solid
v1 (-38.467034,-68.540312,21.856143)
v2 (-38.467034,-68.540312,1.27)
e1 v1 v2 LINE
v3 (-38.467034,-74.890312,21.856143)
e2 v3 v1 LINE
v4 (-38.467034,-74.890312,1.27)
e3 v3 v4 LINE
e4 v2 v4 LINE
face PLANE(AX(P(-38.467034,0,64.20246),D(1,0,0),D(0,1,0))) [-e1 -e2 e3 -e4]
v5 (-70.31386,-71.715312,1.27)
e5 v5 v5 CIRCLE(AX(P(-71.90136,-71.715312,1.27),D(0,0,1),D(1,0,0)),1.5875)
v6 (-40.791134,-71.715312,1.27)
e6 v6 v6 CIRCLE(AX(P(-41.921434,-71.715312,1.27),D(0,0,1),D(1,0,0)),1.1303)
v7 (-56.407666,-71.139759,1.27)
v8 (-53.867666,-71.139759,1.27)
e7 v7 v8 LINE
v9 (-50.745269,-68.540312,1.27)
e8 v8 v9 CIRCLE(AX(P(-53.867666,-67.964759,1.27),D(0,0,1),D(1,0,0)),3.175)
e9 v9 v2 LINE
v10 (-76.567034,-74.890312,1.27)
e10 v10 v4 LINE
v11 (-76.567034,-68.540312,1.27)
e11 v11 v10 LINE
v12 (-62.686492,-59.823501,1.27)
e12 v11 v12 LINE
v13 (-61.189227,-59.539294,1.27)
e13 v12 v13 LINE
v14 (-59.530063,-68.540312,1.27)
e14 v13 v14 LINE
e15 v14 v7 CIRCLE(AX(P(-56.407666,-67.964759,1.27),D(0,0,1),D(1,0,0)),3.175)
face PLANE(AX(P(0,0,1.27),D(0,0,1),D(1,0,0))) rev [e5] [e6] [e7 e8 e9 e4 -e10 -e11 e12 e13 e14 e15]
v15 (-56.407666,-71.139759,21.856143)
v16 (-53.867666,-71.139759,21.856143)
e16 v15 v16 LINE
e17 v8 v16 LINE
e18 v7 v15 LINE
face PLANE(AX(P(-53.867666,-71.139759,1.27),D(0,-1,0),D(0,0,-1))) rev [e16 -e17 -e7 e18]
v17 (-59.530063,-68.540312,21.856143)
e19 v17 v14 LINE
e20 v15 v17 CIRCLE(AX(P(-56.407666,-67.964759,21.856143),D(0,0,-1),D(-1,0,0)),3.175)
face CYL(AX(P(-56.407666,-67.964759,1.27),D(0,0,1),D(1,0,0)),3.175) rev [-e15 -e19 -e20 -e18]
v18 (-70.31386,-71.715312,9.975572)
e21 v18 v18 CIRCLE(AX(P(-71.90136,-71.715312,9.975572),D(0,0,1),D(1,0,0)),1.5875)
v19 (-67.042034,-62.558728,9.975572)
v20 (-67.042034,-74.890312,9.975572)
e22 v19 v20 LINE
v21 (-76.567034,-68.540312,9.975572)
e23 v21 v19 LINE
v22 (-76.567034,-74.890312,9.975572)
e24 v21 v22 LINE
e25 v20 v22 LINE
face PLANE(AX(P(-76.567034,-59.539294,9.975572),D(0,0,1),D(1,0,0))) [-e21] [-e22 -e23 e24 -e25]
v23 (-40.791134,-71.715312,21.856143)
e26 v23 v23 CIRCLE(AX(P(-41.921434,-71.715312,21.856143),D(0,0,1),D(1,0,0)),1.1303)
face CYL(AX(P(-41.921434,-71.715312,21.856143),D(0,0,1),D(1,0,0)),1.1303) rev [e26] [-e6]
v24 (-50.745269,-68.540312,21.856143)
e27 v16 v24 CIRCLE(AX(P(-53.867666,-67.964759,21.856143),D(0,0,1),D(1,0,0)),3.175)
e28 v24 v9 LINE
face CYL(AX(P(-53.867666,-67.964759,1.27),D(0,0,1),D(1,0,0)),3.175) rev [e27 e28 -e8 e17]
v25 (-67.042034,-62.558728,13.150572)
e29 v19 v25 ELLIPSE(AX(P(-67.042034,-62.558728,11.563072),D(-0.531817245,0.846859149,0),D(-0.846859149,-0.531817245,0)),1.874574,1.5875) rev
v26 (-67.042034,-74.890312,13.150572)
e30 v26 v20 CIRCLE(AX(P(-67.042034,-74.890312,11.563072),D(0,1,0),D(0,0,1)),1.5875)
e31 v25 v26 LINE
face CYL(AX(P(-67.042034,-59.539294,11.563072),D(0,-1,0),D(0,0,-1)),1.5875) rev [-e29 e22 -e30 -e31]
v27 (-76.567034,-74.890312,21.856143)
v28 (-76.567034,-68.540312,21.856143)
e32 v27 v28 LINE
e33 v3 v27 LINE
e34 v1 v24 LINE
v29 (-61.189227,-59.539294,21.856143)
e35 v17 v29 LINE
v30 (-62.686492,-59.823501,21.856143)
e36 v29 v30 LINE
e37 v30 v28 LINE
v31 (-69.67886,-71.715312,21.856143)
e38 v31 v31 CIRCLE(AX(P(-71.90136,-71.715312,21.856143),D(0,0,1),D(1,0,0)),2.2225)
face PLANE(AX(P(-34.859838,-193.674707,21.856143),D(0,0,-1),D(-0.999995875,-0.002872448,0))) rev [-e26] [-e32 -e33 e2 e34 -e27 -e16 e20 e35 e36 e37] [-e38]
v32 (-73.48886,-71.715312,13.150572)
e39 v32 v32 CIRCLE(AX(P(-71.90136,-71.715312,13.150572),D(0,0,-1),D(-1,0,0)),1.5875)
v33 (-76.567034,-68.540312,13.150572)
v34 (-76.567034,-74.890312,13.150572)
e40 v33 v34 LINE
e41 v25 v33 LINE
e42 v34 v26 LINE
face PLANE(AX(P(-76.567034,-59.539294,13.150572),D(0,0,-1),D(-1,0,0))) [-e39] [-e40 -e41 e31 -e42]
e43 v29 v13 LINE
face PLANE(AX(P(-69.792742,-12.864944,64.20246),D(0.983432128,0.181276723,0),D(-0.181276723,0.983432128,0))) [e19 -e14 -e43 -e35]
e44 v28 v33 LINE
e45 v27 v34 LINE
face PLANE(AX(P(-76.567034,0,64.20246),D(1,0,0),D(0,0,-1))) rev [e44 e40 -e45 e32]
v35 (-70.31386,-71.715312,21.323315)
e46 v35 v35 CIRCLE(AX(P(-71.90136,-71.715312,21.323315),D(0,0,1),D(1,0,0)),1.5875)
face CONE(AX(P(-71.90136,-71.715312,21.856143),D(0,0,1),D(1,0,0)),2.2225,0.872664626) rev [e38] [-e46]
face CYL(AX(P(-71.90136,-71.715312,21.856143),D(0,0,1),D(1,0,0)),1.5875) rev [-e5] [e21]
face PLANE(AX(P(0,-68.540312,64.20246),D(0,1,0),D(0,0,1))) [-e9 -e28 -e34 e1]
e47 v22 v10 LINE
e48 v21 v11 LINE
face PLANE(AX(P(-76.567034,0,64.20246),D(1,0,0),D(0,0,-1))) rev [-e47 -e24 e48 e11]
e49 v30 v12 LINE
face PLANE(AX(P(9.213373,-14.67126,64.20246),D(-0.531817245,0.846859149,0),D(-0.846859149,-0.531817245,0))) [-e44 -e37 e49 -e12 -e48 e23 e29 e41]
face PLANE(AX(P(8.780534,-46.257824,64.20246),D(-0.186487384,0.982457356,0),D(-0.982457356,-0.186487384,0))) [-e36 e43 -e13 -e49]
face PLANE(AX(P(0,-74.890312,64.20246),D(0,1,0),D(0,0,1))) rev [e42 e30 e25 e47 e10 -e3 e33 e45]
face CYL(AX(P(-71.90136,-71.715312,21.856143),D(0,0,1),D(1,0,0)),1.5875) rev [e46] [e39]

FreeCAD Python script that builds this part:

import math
import FreeCAD as App
import Part
import Sketcher
from FreeCAD import Vector
Q = App.Units.Quantity

doc = App.newDocument("Part")
body = doc.addObject("PartDesign::Body", "Body")

sketch1 = doc.addObject("Sketcher::SketchObject", "Sketch")
body.addObject(sketch1)
sketch1.AttachmentSupport = (doc.XY_Plane, [""])
sketch1.MapMode = "FlatFace"
sketch1.AttachmentOffset = App.Placement(Vector(0, 0, 0.05 * 25.4), App.Rotation())
sketch1.addGeometry(Part.LineSegment(Vector(-76.567034, -68.540312, 0), Vector(-76.567034, -74.890312, 0)), False)
sketch1.addGeometry(Part.LineSegment(Vector(-76.567034, -74.890312, 0), Vector(-38.467034, -74.890312, 0)), False)
sketch1.addGeometry(Part.LineSegment(Vector(-38.467034, -74.890312, 0), Vector(-38.467034, -68.540312, 0)), False)
sketch1.addGeometry(Part.LineSegment(Vector(-38.467034, -68.540312, 0), Vector(-59.530063, -68.540312, 0)), False)
sketch1.addGeometry(Part.LineSegment(Vector(-59.530063, -68.540312, 0), Vector(-61.189227, -59.539294, 0)), False)
sketch1.addGeometry(Part.LineSegment(Vector(-61.189227, -59.539294, 0), Vector(-62.686492, -59.823501, 0)), False)
sketch1.addGeometry(Part.LineSegment(Vector(-62.686492, -59.823501, 0), Vector(-76.567034, -68.540312, 0)), False)
sketch1.addConstraint(Sketcher.Constraint("Coincident", 0, 2, 1, 1))
sketch1.addConstraint(Sketcher.Constraint("Coincident", 1, 2, 2, 1))
sketch1.addConstraint(Sketcher.Constraint("Coincident", 2, 2, 3, 1))
sketch1.addConstraint(Sketcher.Constraint("Coincident", 3, 2, 4, 1))
sketch1.addConstraint(Sketcher.Constraint("Coincident", 4, 2, 5, 1))
sketch1.addConstraint(Sketcher.Constraint("Coincident", 5, 2, 6, 1))
sketch1.addConstraint(Sketcher.Constraint("Coincident", 6, 2, 0, 1))
sketch1.addConstraint(Sketcher.Constraint("Vertical", 0))
sketch1.addConstraint(Sketcher.Constraint("Horizontal", 1))
sketch1.addConstraint(Sketcher.Constraint("Vertical", 2))
sketch1.addConstraint(Sketcher.Constraint("Horizontal", 3))
sketch1.addConstraint(Sketcher.Constraint("Horizontal", 3, 2, 6, 2))
sketch1.addConstraint(Sketcher.Constraint("DistanceX", 1, 1, 1, 2, Q("1.5 in")))
sketch1.addConstraint(Sketcher.Constraint("DistanceY", 0, 2, 0, 1, Q("0.25 in")))
sketch1.addConstraint(Sketcher.Constraint("Distance", 5, Q("0.06 in")))
sketch1.addConstraint(Sketcher.Constraint("Distance", 6, Q("0.6452998 in")))
sketch1.addConstraint(Sketcher.Constraint("DistanceX", 3, 2, 3, 1, 21.063029))
sketch1.addConstraint(Sketcher.Constraint("DistanceY", 5, 2, -1, 1, 59.823501))
sketch1.addConstraint(Sketcher.Constraint("Distance", 4, 9.152659))
sketch1.addConstraint(Sketcher.Constraint("DistanceX", 5, 2, -1, 1, 62.686492))
sketch1.addConstraint(Sketcher.Constraint("DistanceY", 3, 2, 4, 2, 9.001019))
pad1 = doc.addObject("PartDesign::Pad", "Pad")
body.addObject(pad1)
pad1.Profile = sketch1
pad1.Length = 20.586143

sketch2 = doc.addObject("Sketcher::SketchObject", "Sketch001")
body.addObject(sketch2)
sketch2.AttachmentSupport = (doc.XZ_Plane, [""])
sketch2.MapMode = "FlatFace"
sketch2.AttachmentOffset = App.Placement(Vector(0, 0, 74.890312), App.Rotation())
sketch2.addGeometry(Part.LineSegment(Vector(-76.567034, 13.150572, 0), Vector(-67.042034, 13.150572, 0)), False)
sketch2.addGeometry(Part.ArcOfCircle(Part.Circle(Vector(-67.042034, 11.563072, 0), Vector(0, 0, 1), 1.5875), math.radians(-90), math.radians(90)), False)
sketch2.addGeometry(Part.LineSegment(Vector(-67.042034, 9.975572, 0), Vector(-76.567034, 9.975572, 0)), False)
sketch2.addGeometry(Part.ArcOfCircle(Part.Circle(Vector(-76.567034, 11.563072, 0), Vector(0, 0, 1), 1.5875), math.radians(90), math.radians(270)), False)
sketch2.addConstraint(Sketcher.Constraint("Tangent", 0, 2, 1, 2))
sketch2.addConstraint(Sketcher.Constraint("Tangent", 1, 1, 2, 1))
sketch2.addConstraint(Sketcher.Constraint("Tangent", 2, 2, 3, 2))
sketch2.addConstraint(Sketcher.Constraint("Tangent", 3, 1, 0, 1))
sketch2.addConstraint(Sketcher.Constraint("Horizontal", 0))
sketch2.addConstraint(Sketcher.Constraint("Horizontal", 2))
sketch2.addConstraint(Sketcher.Constraint("Radius", 1, Q("0.0625 in")))
sketch2.addConstraint(Sketcher.Constraint("DistanceX", 0, 1, 0, 2, Q("0.375 in")))
sketch2.addConstraint(Sketcher.Constraint("DistanceY", -1, 1, 1, 3, 11.563072))
sketch2.addConstraint(Sketcher.Constraint("DistanceX", 1, 3, -1, 1, 67.042034))
pocket1 = doc.addObject("PartDesign::Pocket", "Pocket")
body.addObject(pocket1)
pocket1.Profile = sketch2
pocket1.Type = "ThroughAll"

sketch3 = doc.addObject("Sketcher::SketchObject", "Sketch002")
body.addObject(sketch3)
sketch3.AttachmentSupport = (doc.XY_Plane, [""])
sketch3.MapMode = "FlatFace"
sketch3.AttachmentOffset = App.Placement(Vector(0, 0, 21.856143), App.Rotation())
sketch3.addGeometry(Part.Circle(Vector(-71.90136, -71.715312, 0), Vector(0, 0, 1), 1.5875), False)
sketch3.addConstraint(Sketcher.Constraint("Diameter", 0, Q("0.125 in")))
sketch3.addConstraint(Sketcher.Constraint("DistanceX", 0, 3, -1, 1, 71.90136))
sketch3.addConstraint(Sketcher.Constraint("DistanceY", 0, 3, -1, 1, 71.715312))
doc.recompute()
hole = doc.addObject("PartDesign::Hole", "Hole")
body.addObject(hole)
hole.Profile = sketch3
hole.ThreadType = "None"
hole.Diameter = Q("0.125 in")
hole.DepthType = "ThroughAll"
hole.HoleCutType = "Countersink"
hole.HoleCutDiameter = Q("0.175 in")
hole.HoleCutCountersinkAngle = 100

sketch4 = doc.addObject("Sketcher::SketchObject", "Sketch003")
body.addObject(sketch4)
sketch4.AttachmentSupport = (doc.XY_Plane, [""])
sketch4.MapMode = "FlatFace"
sketch4.AttachmentOffset = App.Placement(Vector(0, 0, 21.856143), App.Rotation())
sketch4.addGeometry(Part.Circle(Vector(-41.921434, -71.715312, 0), Vector(0, 0, 1), 1.1303), False)
sketch4.addConstraint(Sketcher.Constraint("Diameter", 0, Q("0.089 in")))
sketch4.addConstraint(Sketcher.Constraint("DistanceX", 0, 3, -1, 1, 41.921434))
sketch4.addConstraint(Sketcher.Constraint("DistanceY", 0, 3, -1, 1, 71.715312))
doc.recompute()
hole2 = doc.addObject("PartDesign::Hole", "Hole001")
body.addObject(hole2)
hole2.Profile = sketch4
hole2.ThreadType = "None"
hole2.Diameter = Q("0.089 in")
hole2.DepthType = "ThroughAll"

sketch5 = doc.addObject("Sketcher::SketchObject", "Sketch004")
body.addObject(sketch5)
sketch5.AttachmentSupport = (doc.XY_Plane, [""])
sketch5.MapMode = "FlatFace"
sketch5.AttachmentOffset = App.Placement(Vector(0, 0, 21.856143), App.Rotation())
sketch5.addGeometry(Part.LineSegment(Vector(-56.407666, -71.139759, 0), Vector(-53.867666, -71.139759, 0)), False)
sketch5.addGeometry(Part.ArcOfCircle(Part.Circle(Vector(-53.867666, -67.964759, 0), Vector(0, 0, 1), 3.175), math.radians(-90), math.radians(90)), False)
sketch5.addGeometry(Part.LineSegment(Vector(-53.867666, -64.789759, 0), Vector(-56.407666, -64.789759, 0)), False)
sketch5.addGeometry(Part.ArcOfCircle(Part.Circle(Vector(-56.407666, -67.964759, 0), Vector(0, 0, 1), 3.175), math.radians(90), math.radians(270)), False)
sketch5.addConstraint(Sketcher.Constraint("Tangent", 0, 2, 1, 1))
sketch5.addConstraint(Sketcher.Constraint("Tangent", 1, 2, 2, 1))
sketch5.addConstraint(Sketcher.Constraint("Tangent", 2, 2, 3, 1))
sketch5.addConstraint(Sketcher.Constraint("Tangent", 3, 2, 0, 1))
sketch5.addConstraint(Sketcher.Constraint("Horizontal", 0))
sketch5.addConstraint(Sketcher.Constraint("Horizontal", 2))
sketch5.addConstraint(Sketcher.Constraint("DistanceX", 0, 1, 0, 2, Q("0.1 in")))
sketch5.addConstraint(Sketcher.Constraint("Radius", 1, Q("0.125 in")))
sketch5.addConstraint(Sketcher.Constraint("DistanceY", 1, 3, -1, 1, 67.964759))
sketch5.addConstraint(Sketcher.Constraint("DistanceX", 1, 3, -1, 1, 53.867666))
pocket2 = doc.addObject("PartDesign::Pocket", "Pocket001")
body.addObject(pocket2)
pocket2.Profile = sketch5
pocket2.Type = "ThroughAll"

doc.recompute()
